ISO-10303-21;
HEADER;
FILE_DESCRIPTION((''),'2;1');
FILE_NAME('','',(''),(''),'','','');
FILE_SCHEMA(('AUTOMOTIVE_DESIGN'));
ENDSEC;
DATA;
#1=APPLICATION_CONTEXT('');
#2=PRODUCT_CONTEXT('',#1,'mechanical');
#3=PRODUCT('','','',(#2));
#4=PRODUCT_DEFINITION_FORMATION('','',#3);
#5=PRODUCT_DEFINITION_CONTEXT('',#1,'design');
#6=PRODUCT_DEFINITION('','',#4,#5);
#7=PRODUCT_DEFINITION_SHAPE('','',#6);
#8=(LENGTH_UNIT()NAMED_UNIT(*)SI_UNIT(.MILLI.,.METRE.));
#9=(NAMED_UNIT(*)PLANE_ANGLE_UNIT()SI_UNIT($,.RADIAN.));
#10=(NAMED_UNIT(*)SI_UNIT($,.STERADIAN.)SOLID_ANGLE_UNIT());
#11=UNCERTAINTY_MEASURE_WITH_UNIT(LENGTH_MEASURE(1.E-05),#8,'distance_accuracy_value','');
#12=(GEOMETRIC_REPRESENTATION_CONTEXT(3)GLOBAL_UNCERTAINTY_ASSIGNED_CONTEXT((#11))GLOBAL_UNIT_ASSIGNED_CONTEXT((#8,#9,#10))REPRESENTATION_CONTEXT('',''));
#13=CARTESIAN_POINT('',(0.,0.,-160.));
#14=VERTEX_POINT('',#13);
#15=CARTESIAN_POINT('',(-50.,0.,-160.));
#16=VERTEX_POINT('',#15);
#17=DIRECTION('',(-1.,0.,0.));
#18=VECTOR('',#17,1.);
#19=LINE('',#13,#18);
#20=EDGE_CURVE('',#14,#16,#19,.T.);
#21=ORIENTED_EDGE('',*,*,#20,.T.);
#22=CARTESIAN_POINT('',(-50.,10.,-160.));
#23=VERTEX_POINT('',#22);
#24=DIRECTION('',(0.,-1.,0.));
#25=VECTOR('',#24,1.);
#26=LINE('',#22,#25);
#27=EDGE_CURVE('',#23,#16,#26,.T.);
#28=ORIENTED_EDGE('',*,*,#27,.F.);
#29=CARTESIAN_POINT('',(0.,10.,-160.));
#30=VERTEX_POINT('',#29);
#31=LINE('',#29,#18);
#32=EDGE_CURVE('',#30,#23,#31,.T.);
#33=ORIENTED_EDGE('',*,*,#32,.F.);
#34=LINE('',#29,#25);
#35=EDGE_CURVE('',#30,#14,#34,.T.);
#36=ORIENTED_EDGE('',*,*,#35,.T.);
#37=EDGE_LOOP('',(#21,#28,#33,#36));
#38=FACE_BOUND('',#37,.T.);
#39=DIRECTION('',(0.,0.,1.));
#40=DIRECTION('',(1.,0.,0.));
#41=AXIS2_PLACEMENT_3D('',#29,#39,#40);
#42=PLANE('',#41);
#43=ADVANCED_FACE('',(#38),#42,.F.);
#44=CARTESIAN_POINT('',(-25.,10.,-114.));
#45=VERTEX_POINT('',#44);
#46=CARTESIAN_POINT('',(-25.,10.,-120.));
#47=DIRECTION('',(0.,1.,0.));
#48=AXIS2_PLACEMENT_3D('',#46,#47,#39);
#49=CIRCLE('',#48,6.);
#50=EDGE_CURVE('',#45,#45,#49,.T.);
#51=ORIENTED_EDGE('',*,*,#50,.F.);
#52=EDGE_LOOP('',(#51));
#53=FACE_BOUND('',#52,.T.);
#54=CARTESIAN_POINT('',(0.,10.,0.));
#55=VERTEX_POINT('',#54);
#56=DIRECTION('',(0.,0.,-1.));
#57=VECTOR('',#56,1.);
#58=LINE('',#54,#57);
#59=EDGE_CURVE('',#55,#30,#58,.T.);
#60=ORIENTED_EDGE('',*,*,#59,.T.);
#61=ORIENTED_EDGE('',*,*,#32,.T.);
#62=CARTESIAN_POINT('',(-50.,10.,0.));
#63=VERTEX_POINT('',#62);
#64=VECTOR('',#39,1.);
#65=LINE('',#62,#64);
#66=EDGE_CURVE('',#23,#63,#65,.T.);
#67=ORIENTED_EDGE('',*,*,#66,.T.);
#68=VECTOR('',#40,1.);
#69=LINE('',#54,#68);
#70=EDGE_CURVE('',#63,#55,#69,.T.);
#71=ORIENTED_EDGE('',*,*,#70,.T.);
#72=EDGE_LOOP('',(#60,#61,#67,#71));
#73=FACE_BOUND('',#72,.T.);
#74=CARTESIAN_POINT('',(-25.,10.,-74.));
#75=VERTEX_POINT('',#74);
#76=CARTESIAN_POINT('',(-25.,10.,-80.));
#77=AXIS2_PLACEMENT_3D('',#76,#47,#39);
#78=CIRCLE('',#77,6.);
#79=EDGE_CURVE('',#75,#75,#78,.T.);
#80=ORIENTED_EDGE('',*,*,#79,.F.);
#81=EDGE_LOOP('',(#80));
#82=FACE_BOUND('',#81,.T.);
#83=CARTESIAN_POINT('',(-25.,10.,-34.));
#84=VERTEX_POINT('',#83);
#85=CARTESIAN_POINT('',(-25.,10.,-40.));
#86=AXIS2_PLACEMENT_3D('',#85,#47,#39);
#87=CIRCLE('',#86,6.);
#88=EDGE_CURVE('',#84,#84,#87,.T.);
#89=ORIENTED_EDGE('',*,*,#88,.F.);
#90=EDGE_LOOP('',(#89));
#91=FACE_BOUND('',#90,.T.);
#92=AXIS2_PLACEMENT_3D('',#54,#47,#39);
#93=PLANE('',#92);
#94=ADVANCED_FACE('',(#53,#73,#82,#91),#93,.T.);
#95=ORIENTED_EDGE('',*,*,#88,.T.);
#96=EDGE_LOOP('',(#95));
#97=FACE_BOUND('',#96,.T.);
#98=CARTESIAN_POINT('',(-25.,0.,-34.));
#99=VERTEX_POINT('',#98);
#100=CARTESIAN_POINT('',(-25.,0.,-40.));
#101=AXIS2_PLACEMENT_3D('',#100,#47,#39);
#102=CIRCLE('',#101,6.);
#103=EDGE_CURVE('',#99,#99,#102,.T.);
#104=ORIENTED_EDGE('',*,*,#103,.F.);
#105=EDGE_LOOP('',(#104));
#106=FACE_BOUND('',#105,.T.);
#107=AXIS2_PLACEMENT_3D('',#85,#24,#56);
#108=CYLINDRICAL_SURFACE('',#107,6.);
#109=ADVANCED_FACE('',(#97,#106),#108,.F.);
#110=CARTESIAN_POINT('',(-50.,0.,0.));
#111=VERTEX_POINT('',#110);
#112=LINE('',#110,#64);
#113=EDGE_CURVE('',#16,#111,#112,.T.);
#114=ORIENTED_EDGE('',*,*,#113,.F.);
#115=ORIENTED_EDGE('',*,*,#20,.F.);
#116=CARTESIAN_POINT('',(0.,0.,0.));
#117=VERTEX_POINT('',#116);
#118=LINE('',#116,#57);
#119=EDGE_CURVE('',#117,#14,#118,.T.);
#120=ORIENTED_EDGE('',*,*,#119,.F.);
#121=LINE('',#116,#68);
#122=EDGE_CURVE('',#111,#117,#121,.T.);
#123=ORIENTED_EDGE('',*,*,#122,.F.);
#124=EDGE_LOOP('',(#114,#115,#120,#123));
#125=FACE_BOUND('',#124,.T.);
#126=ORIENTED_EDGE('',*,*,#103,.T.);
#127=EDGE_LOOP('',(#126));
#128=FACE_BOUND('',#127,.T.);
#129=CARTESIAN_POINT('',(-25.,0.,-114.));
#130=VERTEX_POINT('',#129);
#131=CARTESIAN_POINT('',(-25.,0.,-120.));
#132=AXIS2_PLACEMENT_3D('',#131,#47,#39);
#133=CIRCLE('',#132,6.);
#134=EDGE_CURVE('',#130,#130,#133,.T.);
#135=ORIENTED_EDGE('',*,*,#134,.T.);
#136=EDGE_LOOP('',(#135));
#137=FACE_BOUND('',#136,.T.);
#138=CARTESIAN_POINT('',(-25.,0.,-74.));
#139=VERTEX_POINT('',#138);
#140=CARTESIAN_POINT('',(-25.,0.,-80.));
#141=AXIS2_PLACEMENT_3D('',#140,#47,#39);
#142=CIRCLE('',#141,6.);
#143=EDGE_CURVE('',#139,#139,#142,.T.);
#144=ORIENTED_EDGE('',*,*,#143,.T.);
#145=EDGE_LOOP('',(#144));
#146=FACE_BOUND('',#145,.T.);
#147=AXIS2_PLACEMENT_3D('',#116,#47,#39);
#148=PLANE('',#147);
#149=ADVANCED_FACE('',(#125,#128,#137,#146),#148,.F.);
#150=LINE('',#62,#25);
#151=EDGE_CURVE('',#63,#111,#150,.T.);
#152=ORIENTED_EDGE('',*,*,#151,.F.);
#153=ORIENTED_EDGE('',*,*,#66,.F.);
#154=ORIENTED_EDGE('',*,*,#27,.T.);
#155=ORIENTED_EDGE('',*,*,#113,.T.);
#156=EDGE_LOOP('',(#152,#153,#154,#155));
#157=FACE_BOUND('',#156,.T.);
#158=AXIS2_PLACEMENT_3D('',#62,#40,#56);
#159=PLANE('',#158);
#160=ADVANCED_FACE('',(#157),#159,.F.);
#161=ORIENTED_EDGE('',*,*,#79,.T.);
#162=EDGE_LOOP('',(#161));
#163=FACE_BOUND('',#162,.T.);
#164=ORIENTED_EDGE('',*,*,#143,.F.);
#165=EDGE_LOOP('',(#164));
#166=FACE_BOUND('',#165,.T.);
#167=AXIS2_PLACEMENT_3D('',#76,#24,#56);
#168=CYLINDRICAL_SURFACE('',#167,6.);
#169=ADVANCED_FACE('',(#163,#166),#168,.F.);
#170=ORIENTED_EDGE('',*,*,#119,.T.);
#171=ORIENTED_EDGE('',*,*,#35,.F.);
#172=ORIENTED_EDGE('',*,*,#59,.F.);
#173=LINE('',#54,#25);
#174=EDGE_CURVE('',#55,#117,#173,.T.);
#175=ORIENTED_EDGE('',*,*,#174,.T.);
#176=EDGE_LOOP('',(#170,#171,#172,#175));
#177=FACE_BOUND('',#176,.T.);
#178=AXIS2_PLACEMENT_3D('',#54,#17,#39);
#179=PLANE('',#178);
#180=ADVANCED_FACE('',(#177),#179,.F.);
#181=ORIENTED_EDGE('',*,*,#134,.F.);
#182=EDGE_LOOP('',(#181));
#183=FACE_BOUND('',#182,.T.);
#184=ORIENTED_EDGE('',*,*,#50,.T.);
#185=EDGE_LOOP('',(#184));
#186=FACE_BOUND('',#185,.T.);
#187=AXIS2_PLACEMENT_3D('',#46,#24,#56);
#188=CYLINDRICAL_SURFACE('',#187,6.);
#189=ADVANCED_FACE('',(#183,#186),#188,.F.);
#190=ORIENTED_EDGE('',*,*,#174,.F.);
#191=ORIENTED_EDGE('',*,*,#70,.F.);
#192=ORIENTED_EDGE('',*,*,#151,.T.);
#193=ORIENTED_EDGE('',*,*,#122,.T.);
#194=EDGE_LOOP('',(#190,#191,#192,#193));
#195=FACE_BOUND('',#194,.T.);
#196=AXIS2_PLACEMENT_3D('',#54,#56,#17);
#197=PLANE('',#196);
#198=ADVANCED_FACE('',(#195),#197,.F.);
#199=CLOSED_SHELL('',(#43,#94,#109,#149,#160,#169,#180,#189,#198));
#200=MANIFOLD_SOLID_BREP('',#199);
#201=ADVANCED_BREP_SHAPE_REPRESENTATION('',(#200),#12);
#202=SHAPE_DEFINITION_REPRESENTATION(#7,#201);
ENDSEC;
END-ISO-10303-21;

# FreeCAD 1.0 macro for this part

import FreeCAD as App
import Part
import Sketcher
from FreeCAD import Vector


def add_polygon(sketch, points):
    """Adds a closed chain of lines whose ends are joined by coincident constraints."""
    first, n = sketch.GeometryCount, len(points)
    for a, b in zip(points, points[1:] + points[:1]):
        sketch.addGeometry(Part.LineSegment(App.Vector(*a, 0), App.Vector(*b, 0)), False)
    for i in range(n):
        sketch.addConstraint(Sketcher.Constraint("Coincident", first + i, 2, first + (i + 1) % n, 1))

doc = App.newDocument("Part")
params = doc.addObject("Spreadsheet::Sheet", "Params")
for row, (alias, value) in enumerate([
    ("sketch1_diameter", "12 mm"),
    ("sketch1_width", "50 mm"),
    ("sketch1_height", "160 mm"),
    ("pad1_length", "10 mm"),
], start=1):
    params.set(f"A{row}", alias)
    params.set(f"B{row}", "=" + value)
    params.setAlias(f"B{row}", alias)

body = doc.addObject("PartDesign::Body", "Body")

# Sketch on XZ plane
sketch1 = body.newObject("Sketcher::SketchObject", "Sketch")
sketch1.AttachmentSupport = (doc.getObject("XZ_Plane"), [""])
sketch1.MapMode = "FlatFace"
add_polygon(sketch1, [(-50, -160), (-50, 0), (0, 0), (0, -160)])  # lines 0-3
sketch1.addGeometry(Part.Circle(Vector(-25, -40, 0), Vector(0, 0, 1), 6), False)  # 4
sketch1.addGeometry(Part.Circle(Vector(-25, -80, 0), Vector(0, 0, 1), 6), False)  # 5
sketch1.addGeometry(Part.Circle(Vector(-25, -120, 0), Vector(0, 0, 1), 6), False)  # 6
sketch1.addConstraint(Sketcher.Constraint("Vertical", 0))
sketch1.addConstraint(Sketcher.Constraint("Horizontal", 1))
sketch1.addConstraint(Sketcher.Constraint("Vertical", 2))
sketch1.addConstraint(Sketcher.Constraint("Horizontal", 3))
sketch1.addConstraint(Sketcher.Constraint("Coincident", 1, 2, -1, 1))
sketch1.addConstraint(Sketcher.Constraint("Equal", 4, 5))
sketch1.addConstraint(Sketcher.Constraint("Equal", 5, 6))
sketch1.addConstraint(Sketcher.Constraint("Vertical", 4, 3, 5, 3))
sketch1.addConstraint(Sketcher.Constraint("Vertical", 5, 3, 6, 3))
sketch1.addConstraint(Sketcher.Constraint("Diameter", 4, 12.0))
sketch1.addConstraint(Sketcher.Constraint("DistanceX", 1, 1, 1, 2, 50.0))
sketch1.addConstraint(Sketcher.Constraint("DistanceY", 0, 1, 0, 2, 160.0))
sketch1.addConstraint(Sketcher.Constraint("DistanceX", 4, 3, -1, 1, 25.0))
sketch1.addConstraint(Sketcher.Constraint("DistanceY", 4, 3, -1, 1, 40.0))
sketch1.addConstraint(Sketcher.Constraint("DistanceY", 5, 3, -1, 1, 80.0))
sketch1.addConstraint(Sketcher.Constraint("DistanceY", 6, 3, -1, 1, 120.0))
sketch1.setExpression("Constraints[13]", "Params.sketch1_diameter")
sketch1.setExpression("Constraints[14]", "Params.sketch1_width")
sketch1.setExpression("Constraints[15]", "Params.sketch1_height")
pad1 = body.newObject("PartDesign::Pad", "Pad")
pad1.Profile = sketch1
pad1.setExpression("Length", "Params.pad1_length")
pad1.Reversed = True

doc.recompute()
